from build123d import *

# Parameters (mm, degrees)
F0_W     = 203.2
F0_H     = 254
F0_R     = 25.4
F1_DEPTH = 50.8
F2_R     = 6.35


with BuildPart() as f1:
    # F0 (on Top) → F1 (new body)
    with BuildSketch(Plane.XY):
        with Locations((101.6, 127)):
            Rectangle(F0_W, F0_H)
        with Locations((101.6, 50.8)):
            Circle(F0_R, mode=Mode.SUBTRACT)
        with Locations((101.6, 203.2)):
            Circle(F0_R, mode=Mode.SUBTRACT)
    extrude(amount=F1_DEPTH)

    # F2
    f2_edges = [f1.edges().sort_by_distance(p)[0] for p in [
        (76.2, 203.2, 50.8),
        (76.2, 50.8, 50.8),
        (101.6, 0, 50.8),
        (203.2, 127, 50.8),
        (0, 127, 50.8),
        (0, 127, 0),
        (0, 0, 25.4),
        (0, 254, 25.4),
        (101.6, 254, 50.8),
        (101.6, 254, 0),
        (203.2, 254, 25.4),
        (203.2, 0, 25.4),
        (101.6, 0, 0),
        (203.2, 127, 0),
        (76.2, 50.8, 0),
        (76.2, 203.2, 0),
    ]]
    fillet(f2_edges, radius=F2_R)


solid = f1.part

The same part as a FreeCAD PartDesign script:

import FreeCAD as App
import Part
import Sketcher
from FreeCAD import Vector
Q = App.Units.Quantity

doc = App.newDocument("Part")
params = doc.addObject("Spreadsheet::Sheet", "Params")
for row, (alias, value) in enumerate([
    ("sketch1_diameter", "2 in"),
    ("sketch1_width", "8 in"),
    ("sketch1_height", "10 in"),
    ("pad1_length", "2 in"),
    ("fillet_radius", "0.25 in"),
], start=1):
    params.set(f"A{row}", alias)
    params.set(f"B{row}", "=" + value)
    params.setAlias(f"B{row}", alias)

body = doc.addObject("PartDesign::Body", "Body")

# Sketch on XY plane
sketch1 = doc.addObject("Sketcher::SketchObject", "Sketch")
body.addObject(sketch1)
sketch1.AttachmentSupport = (doc.XY_Plane, [""])
sketch1.MapMode = "FlatFace"
sketch1.addGeometry(Part.LineSegment(Vector(0, 254, 0), Vector(0, 0, 0)), False)
sketch1.addGeometry(Part.LineSegment(Vector(0, 0, 0), Vector(203, 0, 0)), False)
sketch1.addGeometry(Part.LineSegment(Vector(203, 0, 0), Vector(203, 254, 0)), False)
sketch1.addGeometry(Part.LineSegment(Vector(203, 254, 0), Vector(0, 254, 0)), False)
sketch1.addGeometry(Part.Circle(Vector(102, 51, 0), Vector(0, 0, 1), 25), False)
sketch1.addGeometry(Part.Circle(Vector(102, 203, 0), Vector(0, 0, 1), 25), False)
sketch1.addConstraint(Sketcher.Constraint("Coincident", 0, 2, 1, 1))
sketch1.addConstraint(Sketcher.Constraint("Coincident", 1, 2, 2, 1))
sketch1.addConstraint(Sketcher.Constraint("Coincident", 2, 2, 3, 1))
sketch1.addConstraint(Sketcher.Constraint("Coincident", 3, 2, 0, 1))
sketch1.addConstraint(Sketcher.Constraint("Vertical", 0))
sketch1.addConstraint(Sketcher.Constraint("Horizontal", 1))
sketch1.addConstraint(Sketcher.Constraint("Vertical", 2))
sketch1.addConstraint(Sketcher.Constraint("Horizontal", 3))
sketch1.addConstraint(Sketcher.Constraint("Coincident", 0, 2, -1, 1))
sketch1.addConstraint(Sketcher.Constraint("Equal", 4, 5))
sketch1.addConstraint(Sketcher.Constraint("Vertical", 4, 3, 5, 3))
sketch1.addConstraint(Sketcher.Constraint("Diameter", 4, Q("2 in")))
sketch1.addConstraint(Sketcher.Constraint("DistanceX", 1, 1, 1, 2, Q("8 in")))
sketch1.addConstraint(Sketcher.Constraint("DistanceY", 0, 2, 0, 1, Q("10 in")))
sketch1.addConstraint(Sketcher.Constraint("DistanceX", -1, 1, 4, 3, Q("4 in")))
sketch1.addConstraint(Sketcher.Constraint("DistanceY", -1, 1, 4, 3, Q("2 in")))
sketch1.addConstraint(Sketcher.Constraint("DistanceY", -1, 1, 5, 3, Q("8 in")))
sketch1.setExpression("Constraints[11]", "Params.sketch1_diameter")
sketch1.setExpression("Constraints[12]", "Params.sketch1_width")
sketch1.setExpression("Constraints[13]", "Params.sketch1_height")
pad1 = doc.addObject("PartDesign::Pad", "Pad")
body.addObject(pad1)
pad1.Profile = sketch1
pad1.setExpression("Length", "Params.pad1_length")
doc.recompute()

fillet = doc.addObject("PartDesign::Fillet", "Fillet")
body.addObject(fillet)
fillet.Base = (pad1, ["Edge1"])
fillet.UseAllEdges = True
fillet.setExpression("Radius", "Params.fillet_radius")

doc.recompute()
